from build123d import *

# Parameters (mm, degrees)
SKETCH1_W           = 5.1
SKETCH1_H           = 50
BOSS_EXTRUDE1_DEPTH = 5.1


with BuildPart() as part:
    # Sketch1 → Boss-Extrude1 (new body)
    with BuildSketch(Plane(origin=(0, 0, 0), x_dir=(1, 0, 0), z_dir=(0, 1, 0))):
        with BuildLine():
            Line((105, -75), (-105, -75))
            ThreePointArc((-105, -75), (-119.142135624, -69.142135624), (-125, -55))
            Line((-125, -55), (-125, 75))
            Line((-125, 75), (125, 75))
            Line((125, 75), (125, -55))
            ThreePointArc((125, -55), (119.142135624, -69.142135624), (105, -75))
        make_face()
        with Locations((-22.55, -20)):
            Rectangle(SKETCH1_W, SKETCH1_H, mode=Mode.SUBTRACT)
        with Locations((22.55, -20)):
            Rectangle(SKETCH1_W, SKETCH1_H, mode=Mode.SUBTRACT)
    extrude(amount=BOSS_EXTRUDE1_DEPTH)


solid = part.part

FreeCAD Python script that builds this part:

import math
import FreeCAD as App
import Part
import Sketcher
Q = App.Units.Quantity

doc = App.newDocument("Part")
params = doc.addObject("Spreadsheet::Sheet", "Params")
for row, (alias, value) in enumerate([
    ("sketch1_radius", "20 mm"),
    ("sketch1_width", "210 mm"),
    ("sketch1_height", "130 mm"),
    ("sketch1_height2", "50 mm"),
    ("sketch1_width2", "5.1 mm"),
    ("pad1_length", "5.1 mm"),
], start=1):
    params.set(f"A{row}", alias)
    params.set(f"B{row}", "=" + value)
    params.setAlias(f"B{row}", alias)

body = doc.addObject("PartDesign::Body", "Body")

# Sketch on XZ plane
sketch1 = doc.addObject("Sketcher::SketchObject", "Sketch")
body.addObject(sketch1)
sketch1.AttachmentSupport = (doc.XZ_Plane, [""])
sketch1.MapMode = "FlatFace"
sketch1.addGeometry(Part.LineSegment(App.Vector(-105, 75, 0), App.Vector(105, 75, 0)), False)
sketch1.addGeometry(Part.ArcOfCircle(Part.Circle(App.Vector(105, 55, 0), App.Vector(0, 0, 1), 20), math.radians(0), math.radians(90)), False)
sketch1.addGeometry(Part.LineSegment(App.Vector(125, 55, 0), App.Vector(125, -75, 0)), False)
sketch1.addGeometry(Part.LineSegment(App.Vector(125, -75, 0), App.Vector(-125, -75, 0)), False)
sketch1.addGeometry(Part.LineSegment(App.Vector(-125, -75, 0), App.Vector(-125, 55, 0)), False)
sketch1.addGeometry(Part.ArcOfCircle(Part.Circle(App.Vector(-105, 55, 0), App.Vector(0, 0, 1), 20), math.radians(90), math.radians(180)), False)
sketch1.addGeometry(Part.LineSegment(App.Vector(20, 45, 0), App.Vector(20, -5, 0)), False)
sketch1.addGeometry(Part.LineSegment(App.Vector(20, -5, 0), App.Vector(25, -5, 0)), False)
sketch1.addGeometry(Part.LineSegment(App.Vector(25, -5, 0), App.Vector(25, 45, 0)), False)
sketch1.addGeometry(Part.LineSegment(App.Vector(25, 45, 0), App.Vector(20, 45, 0)), False)
sketch1.addGeometry(Part.LineSegment(App.Vector(-25, 45, 0), App.Vector(-25, -5, 0)), False)
sketch1.addGeometry(Part.LineSegment(App.Vector(-25, -5, 0), App.Vector(-20, -5, 0)), False)
sketch1.addGeometry(Part.LineSegment(App.Vector(-20, -5, 0), App.Vector(-20, 45, 0)), False)
sketch1.addGeometry(Part.LineSegment(App.Vector(-20, 45, 0), App.Vector(-25, 45, 0)), False)
sketch1.addConstraint(Sketcher.Constraint("Tangent", 0, 2, 1, 2))
sketch1.addConstraint(Sketcher.Constraint("Tangent", 1, 1, 2, 1))
sketch1.addConstraint(Sketcher.Constraint("Coincident", 2, 2, 3, 1))
sketch1.addConstraint(Sketcher.Constraint("Coincident", 3, 2, 4, 1))
sketch1.addConstraint(Sketcher.Constraint("Tangent", 4, 2, 5, 2))
sketch1.addConstraint(Sketcher.Constraint("Tangent", 5, 1, 0, 1))
sketch1.addConstraint(Sketcher.Constraint("Coincident", 6, 2, 7, 1))
sketch1.addConstraint(Sketcher.Constraint("Coincident", 7, 2, 8, 1))
sketch1.addConstraint(Sketcher.Constraint("Coincident", 8, 2, 9, 1))
sketch1.addConstraint(Sketcher.Constraint("Coincident", 9, 2, 6, 1))
sketch1.addConstraint(Sketcher.Constraint("Coincident", 10, 2, 11, 1))
sketch1.addConstraint(Sketcher.Constraint("Coincident", 11, 2, 12, 1))
sketch1.addConstraint(Sketcher.Constraint("Coincident", 12, 2, 13, 1))
sketch1.addConstraint(Sketcher.Constraint("Coincident", 13, 2, 10, 1))
sketch1.addConstraint(Sketcher.Constraint("Horizontal", 0))
sketch1.addConstraint(Sketcher.Constraint("Vertical", 2))
sketch1.addConstraint(Sketcher.Constraint("Horizontal", 3))
sketch1.addConstraint(Sketcher.Constraint("Vertical", 4))
sketch1.addConstraint(Sketcher.Constraint("Vertical", 6))
sketch1.addConstraint(Sketcher.Constraint("Horizontal", 7))
sketch1.addConstraint(Sketcher.Constraint("Vertical", 8))
sketch1.addConstraint(Sketcher.Constraint("Horizontal", 9))
sketch1.addConstraint(Sketcher.Constraint("Vertical", 10))
sketch1.addConstraint(Sketcher.Constraint("Horizontal", 11))
sketch1.addConstraint(Sketcher.Constraint("Vertical", 12))
sketch1.addConstraint(Sketcher.Constraint("Horizontal", 13))
sketch1.addConstraint(Sketcher.Constraint("Equal", 1, 5))
sketch1.addConstraint(Sketcher.Constraint("Symmetric", 7, 2, 10, 2, -2))
sketch1.addConstraint(Sketcher.Constraint("Symmetric", 9, 2, 12, 2, -2))
sketch1.addConstraint(Sketcher.Constraint("Radius", 1, Q("20 mm")))
sketch1.addConstraint(Sketcher.Constraint("DistanceX", 0, 1, 0, 2, Q("210 mm")))
sketch1.addConstraint(Sketcher.Constraint("DistanceY", 2, 2, 2, 1, Q("130 mm")))
sketch1.addConstraint(Sketcher.Constraint("DistanceY", 6, 2, 6, 1, Q("50 mm")))
sketch1.addConstraint(Sketcher.Constraint("DistanceX", 7, 1, 7, 2, Q("5.1 mm")))
sketch1.addConstraint(Sketcher.Constraint("DistanceX", -1, 1, 1, 3, Q("105 mm")))
sketch1.addConstraint(Sketcher.Constraint("DistanceY", -1, 1, 1, 3, Q("55 mm")))
sketch1.addConstraint(Sketcher.Constraint("DistanceX", -1, 1, 6, 2, Q("20 mm")))
sketch1.addConstraint(Sketcher.Constraint("DistanceY", 6, 2, -1, 1, Q("5 mm")))
sketch1.setExpression("Constraints[29]", "Params.sketch1_radius")
sketch1.setExpression("Constraints[30]", "Params.sketch1_width")
sketch1.setExpression("Constraints[31]", "Params.sketch1_height")
sketch1.setExpression("Constraints[32]", "Params.sketch1_height2")
sketch1.setExpression("Constraints[33]", "Params.sketch1_width2")
pad1 = doc.addObject("PartDesign::Pad", "Pad")
body.addObject(pad1)
pad1.Profile = sketch1
pad1.setExpression("Length", "Params.pad1_length")
pad1.Reversed = True

doc.recompute()
